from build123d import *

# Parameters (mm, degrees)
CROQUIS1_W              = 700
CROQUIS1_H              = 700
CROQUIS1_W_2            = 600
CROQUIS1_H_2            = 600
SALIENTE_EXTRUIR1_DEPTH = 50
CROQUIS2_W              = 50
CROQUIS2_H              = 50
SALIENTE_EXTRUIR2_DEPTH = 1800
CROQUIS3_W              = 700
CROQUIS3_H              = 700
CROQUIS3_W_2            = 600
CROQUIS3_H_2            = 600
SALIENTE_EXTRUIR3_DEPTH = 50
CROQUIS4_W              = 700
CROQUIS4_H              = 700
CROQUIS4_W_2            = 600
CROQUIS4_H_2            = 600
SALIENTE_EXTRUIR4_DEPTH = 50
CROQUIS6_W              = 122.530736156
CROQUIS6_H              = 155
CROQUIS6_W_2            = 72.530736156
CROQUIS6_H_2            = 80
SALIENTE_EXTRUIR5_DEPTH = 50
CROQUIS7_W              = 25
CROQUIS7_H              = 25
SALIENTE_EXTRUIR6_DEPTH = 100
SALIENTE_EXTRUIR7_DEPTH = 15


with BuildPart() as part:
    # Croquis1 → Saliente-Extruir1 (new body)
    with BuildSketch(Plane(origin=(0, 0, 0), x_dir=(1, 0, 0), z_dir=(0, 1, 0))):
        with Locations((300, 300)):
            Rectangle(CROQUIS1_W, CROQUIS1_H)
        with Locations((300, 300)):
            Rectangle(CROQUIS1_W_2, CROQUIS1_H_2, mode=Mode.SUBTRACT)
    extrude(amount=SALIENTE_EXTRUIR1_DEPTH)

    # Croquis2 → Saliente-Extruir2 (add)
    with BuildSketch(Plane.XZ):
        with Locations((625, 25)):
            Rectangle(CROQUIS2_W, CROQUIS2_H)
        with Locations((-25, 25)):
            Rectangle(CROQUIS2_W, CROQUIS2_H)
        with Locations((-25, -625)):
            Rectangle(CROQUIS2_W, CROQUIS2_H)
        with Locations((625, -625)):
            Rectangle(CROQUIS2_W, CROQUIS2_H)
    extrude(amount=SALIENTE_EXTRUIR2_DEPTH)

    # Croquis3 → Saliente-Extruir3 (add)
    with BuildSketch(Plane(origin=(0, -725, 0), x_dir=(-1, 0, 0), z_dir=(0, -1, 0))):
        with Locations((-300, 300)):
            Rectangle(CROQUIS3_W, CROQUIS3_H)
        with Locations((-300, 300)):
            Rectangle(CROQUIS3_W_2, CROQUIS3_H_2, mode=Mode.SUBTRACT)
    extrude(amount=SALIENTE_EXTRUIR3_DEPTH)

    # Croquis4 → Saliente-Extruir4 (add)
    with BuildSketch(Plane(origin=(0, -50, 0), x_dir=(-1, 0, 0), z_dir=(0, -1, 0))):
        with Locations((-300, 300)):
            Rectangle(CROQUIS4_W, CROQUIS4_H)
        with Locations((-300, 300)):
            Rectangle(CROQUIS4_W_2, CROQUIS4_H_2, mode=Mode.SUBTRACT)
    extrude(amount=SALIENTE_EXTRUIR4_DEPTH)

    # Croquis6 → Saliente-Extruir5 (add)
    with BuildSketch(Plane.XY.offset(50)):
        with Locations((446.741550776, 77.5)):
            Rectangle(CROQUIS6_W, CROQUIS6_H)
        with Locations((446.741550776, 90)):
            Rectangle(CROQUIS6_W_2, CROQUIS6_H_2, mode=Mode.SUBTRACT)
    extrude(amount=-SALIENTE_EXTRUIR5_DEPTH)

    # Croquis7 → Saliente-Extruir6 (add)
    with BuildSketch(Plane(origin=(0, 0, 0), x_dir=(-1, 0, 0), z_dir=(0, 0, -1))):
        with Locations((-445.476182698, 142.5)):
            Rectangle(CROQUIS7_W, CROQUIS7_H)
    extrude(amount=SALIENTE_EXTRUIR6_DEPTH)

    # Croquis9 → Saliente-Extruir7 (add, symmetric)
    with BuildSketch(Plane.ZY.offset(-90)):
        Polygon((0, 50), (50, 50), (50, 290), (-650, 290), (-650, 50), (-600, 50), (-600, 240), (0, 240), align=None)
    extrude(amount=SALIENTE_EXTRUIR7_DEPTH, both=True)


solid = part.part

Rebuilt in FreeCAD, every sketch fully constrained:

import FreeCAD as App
import Part
import Sketcher
from FreeCAD import Vector
Q = App.Units.Quantity

doc = App.newDocument("Part")
body = doc.addObject("PartDesign::Body", "Body")

sketch1 = body.newObject("Sketcher::SketchObject", "Sketch")
sketch1.AttachmentSupport = (doc.getObject("XZ_Plane"), [""])
sketch1.MapMode = "FlatFace"
sketch1.addGeometry(Part.LineSegment(Vector(-50, -650, 0), Vector(-50, 50, 0)), False)
sketch1.addGeometry(Part.LineSegment(Vector(-50, 50, 0), Vector(650, 50, 0)), False)
sketch1.addGeometry(Part.LineSegment(Vector(650, 50, 0), Vector(650, -650, 0)), False)
sketch1.addGeometry(Part.LineSegment(Vector(650, -650, 0), Vector(-50, -650, 0)), False)
sketch1.addGeometry(Part.LineSegment(Vector(600, 0, 0), Vector(0, 0, 0)), False)
sketch1.addGeometry(Part.LineSegment(Vector(0, 0, 0), Vector(0, -600, 0)), False)
sketch1.addGeometry(Part.LineSegment(Vector(0, -600, 0), Vector(600, -600, 0)), False)
sketch1.addGeometry(Part.LineSegment(Vector(600, -600, 0), Vector(600, 0, 0)), False)
sketch1.addConstraint(Sketcher.Constraint("Coincident", 0, 2, 1, 1))
sketch1.addConstraint(Sketcher.Constraint("Coincident", 1, 2, 2, 1))
sketch1.addConstraint(Sketcher.Constraint("Coincident", 2, 2, 3, 1))
sketch1.addConstraint(Sketcher.Constraint("Coincident", 3, 2, 0, 1))
sketch1.addConstraint(Sketcher.Constraint("Coincident", 4, 2, 5, 1))
sketch1.addConstraint(Sketcher.Constraint("Coincident", 5, 2, 6, 1))
sketch1.addConstraint(Sketcher.Constraint("Coincident", 6, 2, 7, 1))
sketch1.addConstraint(Sketcher.Constraint("Coincident", 7, 2, 4, 1))
sketch1.addConstraint(Sketcher.Constraint("Vertical", 0))
sketch1.addConstraint(Sketcher.Constraint("Horizontal", 1))
sketch1.addConstraint(Sketcher.Constraint("Vertical", 2))
sketch1.addConstraint(Sketcher.Constraint("Horizontal", 3))
sketch1.addConstraint(Sketcher.Constraint("Horizontal", 4))
sketch1.addConstraint(Sketcher.Constraint("Vertical", 5))
sketch1.addConstraint(Sketcher.Constraint("Horizontal", 6))
sketch1.addConstraint(Sketcher.Constraint("Vertical", 7))
sketch1.addConstraint(Sketcher.Constraint("Coincident", 4, 2, -1, 1))
sketch1.addConstraint(Sketcher.Constraint("Equal", 3, 0))
sketch1.addConstraint(Sketcher.Constraint("Equal", 6, 5))
sketch1.addConstraint(Sketcher.Constraint("DistanceX", 1, 1, 1, 2, Q("700 mm")))
sketch1.addConstraint(Sketcher.Constraint("DistanceX", 4, 2, 4, 1, Q("600 mm")))
sketch1.addConstraint(Sketcher.Constraint("DistanceX", 0, 2, -1, 1, Q("50 mm")))
sketch1.addConstraint(Sketcher.Constraint("DistanceY", -1, 1, 0, 2, Q("50 mm")))
pad1 = body.newObject("PartDesign::Pad", "Pad")
pad1.Profile = sketch1
pad1.Length = 50
pad1.Reversed = True

sketch2 = body.newObject("Sketcher::SketchObject", "Sketch001")
sketch2.AttachmentSupport = (doc.getObject("XZ_Plane"), [""])
sketch2.MapMode = "FlatFace"
sketch2.addGeometry(Part.LineSegment(Vector(600, 50, 0), Vector(600, 0, 0)), False)
sketch2.addGeometry(Part.LineSegment(Vector(600, 0, 0), Vector(650, 0, 0)), False)
sketch2.addGeometry(Part.LineSegment(Vector(650, 0, 0), Vector(650, 50, 0)), False)
sketch2.addGeometry(Part.LineSegment(Vector(650, 50, 0), Vector(600, 50, 0)), False)
sketch2.addGeometry(Part.LineSegment(Vector(-50, 50, 0), Vector(-50, 0, 0)), False)
sketch2.addGeometry(Part.LineSegment(Vector(-50, 0, 0), Vector(0, 0, 0)), False)
sketch2.addGeometry(Part.LineSegment(Vector(0, 0, 0), Vector(0, 50, 0)), False)
sketch2.addGeometry(Part.LineSegment(Vector(0, 50, 0), Vector(-50, 50, 0)), False)
sketch2.addGeometry(Part.LineSegment(Vector(-50, -600, 0), Vector(-50, -650, 0)), False)
sketch2.addGeometry(Part.LineSegment(Vector(-50, -650, 0), Vector(0, -650, 0)), False)
sketch2.addGeometry(Part.LineSegment(Vector(0, -650, 0), Vector(0, -600, 0)), False)
sketch2.addGeometry(Part.LineSegment(Vector(0, -600, 0), Vector(-50, -600, 0)), False)
sketch2.addGeometry(Part.LineSegment(Vector(600, -600, 0), Vector(600, -650, 0)), False)
sketch2.addGeometry(Part.LineSegment(Vector(600, -650, 0), Vector(650, -650, 0)), False)
sketch2.addGeometry(Part.LineSegment(Vector(650, -650, 0), Vector(650, -600, 0)), False)
sketch2.addGeometry(Part.LineSegment(Vector(650, -600, 0), Vector(600, -600, 0)), False)
sketch2.addConstraint(Sketcher.Constraint("Coincident", 0, 2, 1, 1))
sketch2.addConstraint(Sketcher.Constraint("Coincident", 1, 2, 2, 1))
sketch2.addConstraint(Sketcher.Constraint("Coincident", 2, 2, 3, 1))
sketch2.addConstraint(Sketcher.Constraint("Coincident", 3, 2, 0, 1))
sketch2.addConstraint(Sketcher.Constraint("Coincident", 4, 2, 5, 1))
sketch2.addConstraint(Sketcher.Constraint("Coincident", 5, 2, 6, 1))
sketch2.addConstraint(Sketcher.Constraint("Coincident", 6, 2, 7, 1))
sketch2.addConstraint(Sketcher.Constraint("Coincident", 7, 2, 4, 1))
sketch2.addConstraint(Sketcher.Constraint("Coincident", 8, 2, 9, 1))
sketch2.addConstraint(Sketcher.Constraint("Coincident", 9, 2, 10, 1))
sketch2.addConstraint(Sketcher.Constraint("Coincident", 10, 2, 11, 1))
sketch2.addConstraint(Sketcher.Constraint("Coincident", 11, 2, 8, 1))
sketch2.addConstraint(Sketcher.Constraint("Coincident", 12, 2, 13, 1))
sketch2.addConstraint(Sketcher.Constraint("Coincident", 13, 2, 14, 1))
sketch2.addConstraint(Sketcher.Constraint("Coincident", 14, 2, 15, 1))
sketch2.addConstraint(Sketcher.Constraint("Coincident", 15, 2, 12, 1))
sketch2.addConstraint(Sketcher.Constraint("Vertical", 0))
sketch2.addConstraint(Sketcher.Constraint("Horizontal", 1))
sketch2.addConstraint(Sketcher.Constraint("Vertical", 2))
sketch2.addConstraint(Sketcher.Constraint("Horizontal", 3))
sketch2.addConstraint(Sketcher.Constraint("Vertical", 4))
sketch2.addConstraint(Sketcher.Constraint("Horizontal", 5))
sketch2.addConstraint(Sketcher.Constraint("Vertical", 6))
sketch2.addConstraint(Sketcher.Constraint("Horizontal", 7))
sketch2.addConstraint(Sketcher.Constraint("Vertical", 8))
sketch2.addConstraint(Sketcher.Constraint("Horizontal", 9))
sketch2.addConstraint(Sketcher.Constraint("Vertical", 10))
sketch2.addConstraint(Sketcher.Constraint("Horizontal", 11))
sketch2.addConstraint(Sketcher.Constraint("Vertical", 12))
sketch2.addConstraint(Sketcher.Constraint("Horizontal", 13))
sketch2.addConstraint(Sketcher.Constraint("Vertical", 14))
sketch2.addConstraint(Sketcher.Constraint("Horizontal", 15))
sketch2.addConstraint(Sketcher.Constraint("Coincident", 5, 2, -1, 1))
sketch2.addConstraint(Sketcher.Constraint("PointOnObject", 0, 2, -1))
sketch2.addConstraint(Sketcher.Constraint("PointOnObject", 9, 2, -2))
sketch2.addConstraint(Sketcher.Constraint("Horizontal", 3, 2, 6, 2))
sketch2.addConstraint(Sketcher.Constraint("Horizontal", 9, 2, 12, 2))
sketch2.addConstraint(Sketcher.Constraint("Horizontal", 11, 2, 14, 2))
sketch2.addConstraint(Sketcher.Constraint("Vertical", 7, 2, 8, 2))
sketch2.addConstraint(Sketcher.Constraint("Vertical", 3, 2, 12, 2))
sketch2.addConstraint(Sketcher.Constraint("Vertical", 2, 2, 13, 2))
sketch2.addConstraint(Sketcher.Constraint("Equal", 3, 5))
sketch2.addConstraint(Sketcher.Constraint("Equal", 15, 0))
sketch2.addConstraint(Sketcher.Constraint("Equal", 6, 8))
sketch2.addConstraint(Sketcher.Constraint("DistanceX", 1, 1, 1, 2, Q("50 mm")))
sketch2.addConstraint(Sketcher.Constraint("DistanceX", -1, 1, 0, 2, Q("600 mm")))
sketch2.addConstraint(Sketcher.Constraint("DistanceY", 8, 2, -1, 1, Q("650 mm")))
pad2 = body.newObject("PartDesign::Pad", "Pad001")
pad2.Profile = sketch2
pad2.Length = 1800

sketch3 = body.newObject("Sketcher::SketchObject", "Sketch002")
sketch3.AttachmentSupport = (doc.getObject("XZ_Plane"), [""])
sketch3.MapMode = "FlatFace"
sketch3.AttachmentOffset = App.Placement(Vector(0, 0, 725), App.Rotation())
sketch3.addGeometry(Part.LineSegment(Vector(650, -650, 0), Vector(650, 50, 0)), False)
sketch3.addGeometry(Part.LineSegment(Vector(650, 50, 0), Vector(-50, 50, 0)), False)
sketch3.addGeometry(Part.LineSegment(Vector(-50, 50, 0), Vector(-50, -650, 0)), False)
sketch3.addGeometry(Part.LineSegment(Vector(-50, -650, 0), Vector(650, -650, 0)), False)
sketch3.addGeometry(Part.LineSegment(Vector(0, 0, 0), Vector(600, 0, 0)), False)
sketch3.addGeometry(Part.LineSegment(Vector(600, 0, 0), Vector(600, -600, 0)), False)
sketch3.addGeometry(Part.LineSegment(Vector(600, -600, 0), Vector(0, -600, 0)), False)
sketch3.addGeometry(Part.LineSegment(Vector(0, -600, 0), Vector(0, 0, 0)), False)
sketch3.addConstraint(Sketcher.Constraint("Coincident", 0, 2, 1, 1))
sketch3.addConstraint(Sketcher.Constraint("Coincident", 1, 2, 2, 1))
sketch3.addConstraint(Sketcher.Constraint("Coincident", 2, 2, 3, 1))
sketch3.addConstraint(Sketcher.Constraint("Coincident", 3, 2, 0, 1))
sketch3.addConstraint(Sketcher.Constraint("Coincident", 4, 2, 5, 1))
sketch3.addConstraint(Sketcher.Constraint("Coincident", 5, 2, 6, 1))
sketch3.addConstraint(Sketcher.Constraint("Coincident", 6, 2, 7, 1))
sketch3.addConstraint(Sketcher.Constraint("Coincident", 7, 2, 4, 1))
sketch3.addConstraint(Sketcher.Constraint("Vertical", 0))
sketch3.addConstraint(Sketcher.Constraint("Horizontal", 1))
sketch3.addConstraint(Sketcher.Constraint("Vertical", 2))
sketch3.addConstraint(Sketcher.Constraint("Horizontal", 3))
sketch3.addConstraint(Sketcher.Constraint("Horizontal", 4))
sketch3.addConstraint(Sketcher.Constraint("Vertical", 5))
sketch3.addConstraint(Sketcher.Constraint("Horizontal", 6))
sketch3.addConstraint(Sketcher.Constraint("Vertical", 7))
sketch3.addConstraint(Sketcher.Constraint("Coincident", 7, 2, -1, 1))
sketch3.addConstraint(Sketcher.Constraint("Equal", 3, 0))
sketch3.addConstraint(Sketcher.Constraint("Equal", 6, 5))
sketch3.addConstraint(Sketcher.Constraint("DistanceX", 1, 2, 1, 1, Q("700 mm")))
sketch3.addConstraint(Sketcher.Constraint("DistanceX", 4, 1, 4, 2, Q("600 mm")))
sketch3.addConstraint(Sketcher.Constraint("DistanceX", -1, 1, 0, 2, Q("650 mm")))
sketch3.addConstraint(Sketcher.Constraint("DistanceY", -1, 1, 0, 2, Q("50 mm")))
pad3 = body.newObject("PartDesign::Pad", "Pad002")
pad3.Profile = sketch3
pad3.Length = 50

sketch4 = body.newObject("Sketcher::SketchObject", "Sketch003")
sketch4.AttachmentSupport = (doc.getObject("XZ_Plane"), [""])
sketch4.MapMode = "FlatFace"
sketch4.AttachmentOffset = App.Placement(Vector(0, 0, 50), App.Rotation())
sketch4.addGeometry(Part.LineSegment(Vector(650, -650, 0), Vector(650, 50, 0)), False)
sketch4.addGeometry(Part.LineSegment(Vector(650, 50, 0), Vector(-50, 50, 0)), False)
sketch4.addGeometry(Part.LineSegment(Vector(-50, 50, 0), Vector(-50, -650, 0)), False)
sketch4.addGeometry(Part.LineSegment(Vector(-50, -650, 0), Vector(650, -650, 0)), False)
sketch4.addGeometry(Part.LineSegment(Vector(0, 0, 0), Vector(600, 0, 0)), False)
sketch4.addGeometry(Part.LineSegment(Vector(600, 0, 0), Vector(600, -600, 0)), False)
sketch4.addGeometry(Part.LineSegment(Vector(600, -600, 0), Vector(0, -600, 0)), False)
sketch4.addGeometry(Part.LineSegment(Vector(0, -600, 0), Vector(0, 0, 0)), False)
sketch4.addConstraint(Sketcher.Constraint("Coincident", 0, 2, 1, 1))
sketch4.addConstraint(Sketcher.Constraint("Coincident", 1, 2, 2, 1))
sketch4.addConstraint(Sketcher.Constraint("Coincident", 2, 2, 3, 1))
sketch4.addConstraint(Sketcher.Constraint("Coincident", 3, 2, 0, 1))
sketch4.addConstraint(Sketcher.Constraint("Coincident", 4, 2, 5, 1))
sketch4.addConstraint(Sketcher.Constraint("Coincident", 5, 2, 6, 1))
sketch4.addConstraint(Sketcher.Constraint("Coincident", 6, 2, 7, 1))
sketch4.addConstraint(Sketcher.Constraint("Coincident", 7, 2, 4, 1))
sketch4.addConstraint(Sketcher.Constraint("Vertical", 0))
sketch4.addConstraint(Sketcher.Constraint("Horizontal", 1))
sketch4.addConstraint(Sketcher.Constraint("Vertical", 2))
sketch4.addConstraint(Sketcher.Constraint("Horizontal", 3))
sketch4.addConstraint(Sketcher.Constraint("Horizontal", 4))
sketch4.addConstraint(Sketcher.Constraint("Vertical", 5))
sketch4.addConstraint(Sketcher.Constraint("Horizontal", 6))
sketch4.addConstraint(Sketcher.Constraint("Vertical", 7))
sketch4.addConstraint(Sketcher.Constraint("Coincident", 7, 2, -1, 1))
sketch4.addConstraint(Sketcher.Constraint("Equal", 3, 0))
sketch4.addConstraint(Sketcher.Constraint("Equal", 6, 5))
sketch4.addConstraint(Sketcher.Constraint("DistanceX", 1, 2, 1, 1, Q("700 mm")))
sketch4.addConstraint(Sketcher.Constraint("DistanceX", 4, 1, 4, 2, Q("600 mm")))
sketch4.addConstraint(Sketcher.Constraint("DistanceX", -1, 1, 0, 2, Q("650 mm")))
sketch4.addConstraint(Sketcher.Constraint("DistanceY", -1, 1, 0, 2, Q("50 mm")))
pad4 = body.newObject("PartDesign::Pad", "Pad003")
pad4.Profile = sketch4
pad4.Length = 50

sketch5 = body.newObject("Sketcher::SketchObject", "Sketch004")
sketch5.AttachmentSupport = (doc.getObject("XY_Plane"), [""])
sketch5.MapMode = "FlatFace"
sketch5.AttachmentOffset = App.Placement(Vector(0, 0, 50), App.Rotation())
sketch5.addGeometry(Part.LineSegment(Vector(385, 155, 0), Vector(385, 0, 0)), False)
sketch5.addGeometry(Part.LineSegment(Vector(385, 0, 0), Vector(508, 0, 0)), False)
sketch5.addGeometry(Part.LineSegment(Vector(508, 0, 0), Vector(508, 155, 0)), False)
sketch5.addGeometry(Part.LineSegment(Vector(508, 155, 0), Vector(385, 155, 0)), False)
sketch5.addGeometry(Part.LineSegment(Vector(483, 50, 0), Vector(410, 50, 0)), False)
sketch5.addGeometry(Part.LineSegment(Vector(410, 50, 0), Vector(410, 130, 0)), False)
sketch5.addGeometry(Part.LineSegment(Vector(410, 130, 0), Vector(483, 130, 0)), False)
sketch5.addGeometry(Part.LineSegment(Vector(483, 130, 0), Vector(483, 50, 0)), False)
sketch5.addConstraint(Sketcher.Constraint("Coincident", 0, 2, 1, 1))
sketch5.addConstraint(Sketcher.Constraint("Coincident", 1, 2, 2, 1))
sketch5.addConstraint(Sketcher.Constraint("Coincident", 2, 2, 3, 1))
sketch5.addConstraint(Sketcher.Constraint("Coincident", 3, 2, 0, 1))
sketch5.addConstraint(Sketcher.Constraint("Coincident", 4, 2, 5, 1))
sketch5.addConstraint(Sketcher.Constraint("Coincident", 5, 2, 6, 1))
sketch5.addConstraint(Sketcher.Constraint("Coincident", 6, 2, 7, 1))
sketch5.addConstraint(Sketcher.Constraint("Coincident", 7, 2, 4, 1))
sketch5.addConstraint(Sketcher.Constraint("Vertical", 0))
sketch5.addConstraint(Sketcher.Constraint("Horizontal", 1))
sketch5.addConstraint(Sketcher.Constraint("Vertical", 2))
sketch5.addConstraint(Sketcher.Constraint("Horizontal", 3))
sketch5.addConstraint(Sketcher.Constraint("Horizontal", 4))
sketch5.addConstraint(Sketcher.Constraint("Vertical", 5))
sketch5.addConstraint(Sketcher.Constraint("Horizontal", 6))
sketch5.addConstraint(Sketcher.Constraint("Vertical", 7))
sketch5.addConstraint(Sketcher.Constraint("PointOnObject", 0, 2, -1))
sketch5.addConstraint(Sketcher.Constraint("DistanceY", 0, 2, 0, 1, Q("155 mm")))
sketch5.addConstraint(Sketcher.Constraint("DistanceY", 5, 1, 5, 2, Q("80 mm")))
sketch5.addConstraint(Sketcher.Constraint("DistanceY", -1, 1, 4, 2, Q("50 mm")))
sketch5.addConstraint(Sketcher.Constraint("DistanceX", 0, 2, 4, 2, Q("25 mm")))
sketch5.addConstraint(Sketcher.Constraint("DistanceX", 6, 2, 2, 2, Q("25 mm")))
sketch5.addConstraint(Sketcher.Constraint("DistanceX", 1, 1, 1, 2, Q("122.530736 mm")))
sketch5.addConstraint(Sketcher.Constraint("DistanceX", -1, 1, 1, 2, Q("508.006919 mm")))
pad5 = body.newObject("PartDesign::Pad", "Pad004")
pad5.Profile = sketch5
pad5.Length = 50
pad5.Reversed = True

sketch6 = body.newObject("Sketcher::SketchObject", "Sketch005")
sketch6.AttachmentSupport = (doc.getObject("XY_Plane"), [""])
sketch6.MapMode = "FlatFace"
sketch6.addGeometry(Part.LineSegment(Vector(458, 155, 0), Vector(458, 130, 0)), False)
sketch6.addGeometry(Part.LineSegment(Vector(458, 130, 0), Vector(433, 130, 0)), False)
sketch6.addGeometry(Part.LineSegment(Vector(433, 130, 0), Vector(433, 155, 0)), False)
sketch6.addGeometry(Part.LineSegment(Vector(433, 155, 0), Vector(458, 155, 0)), False)
sketch6.addConstraint(Sketcher.Constraint("Coincident", 0, 2, 1, 1))
sketch6.addConstraint(Sketcher.Constraint("Coincident", 1, 2, 2, 1))
sketch6.addConstraint(Sketcher.Constraint("Coincident", 2, 2, 3, 1))
sketch6.addConstraint(Sketcher.Constraint("Coincident", 3, 2, 0, 1))
sketch6.addConstraint(Sketcher.Constraint("Vertical", 0))
sketch6.addConstraint(Sketcher.Constraint("Horizontal", 1))
sketch6.addConstraint(Sketcher.Constraint("Vertical", 2))
sketch6.addConstraint(Sketcher.Constraint("Horizontal", 3))
sketch6.addConstraint(Sketcher.Constraint("Equal", 3, 0))
sketch6.addConstraint(Sketcher.Constraint("DistanceX", 1, 2, 1, 1, Q("25 mm")))
sketch6.addConstraint(Sketcher.Constraint("DistanceY", -1, 1, 0, 2, Q("130 mm")))
sketch6.addConstraint(Sketcher.Constraint("DistanceX", -1, 1, 0, 2, Q("457.976183 mm")))
pad6 = body.newObject("PartDesign::Pad", "Pad005")
pad6.Profile = sketch6
pad6.Length = 100
pad6.Reversed = True

sketch7 = body.newObject("Sketcher::SketchObject", "Sketch006")
sketch7.AttachmentSupport = (doc.getObject("YZ_Plane"), [""])
sketch7.MapMode = "FlatFace"
sketch7.AttachmentOffset = App.Placement(Vector(0, 0, 90), App.Rotation())
sketch7.addGeometry(Part.LineSegment(Vector(50, 0, 0), Vector(50, 50, 0)), False)
sketch7.addGeometry(Part.LineSegment(Vector(50, 50, 0), Vector(290, 50, 0)), False)
sketch7.addGeometry(Part.LineSegment(Vector(290, 50, 0), Vector(290, -650, 0)), False)
sketch7.addGeometry(Part.LineSegment(Vector(290, -650, 0), Vector(50, -650, 0)), False)
sketch7.addGeometry(Part.LineSegment(Vector(50, -650, 0), Vector(50, -600, 0)), False)
sketch7.addGeometry(Part.LineSegment(Vector(50, -600, 0), Vector(240, -600, 0)), False)
sketch7.addGeometry(Part.LineSegment(Vector(240, -600, 0), Vector(240, 0, 0)), False)
sketch7.addGeometry(Part.LineSegment(Vector(240, 0, 0), Vector(50, 0, 0)), False)
sketch7.addConstraint(Sketcher.Constraint("Coincident", 0, 2, 1, 1))
sketch7.addConstraint(Sketcher.Constraint("Coincident", 1, 2, 2, 1))
sketch7.addConstraint(Sketcher.Constraint("Coincident", 2, 2, 3, 1))
sketch7.addConstraint(Sketcher.Constraint("Coincident", 3, 2, 4, 1))
sketch7.addConstraint(Sketcher.Constraint("Coincident", 4, 2, 5, 1))
sketch7.addConstraint(Sketcher.Constraint("Coincident", 5, 2, 6, 1))
sketch7.addConstraint(Sketcher.Constraint("Coincident", 6, 2, 7, 1))
sketch7.addConstraint(Sketcher.Constraint("Coincident", 7, 2, 0, 1))
sketch7.addConstraint(Sketcher.Constraint("Vertical", 0))
sketch7.addConstraint(Sketcher.Constraint("Horizontal", 1))
sketch7.addConstraint(Sketcher.Constraint("Vertical", 2))
sketch7.addConstraint(Sketcher.Constraint("Horizontal", 3))
sketch7.addConstraint(Sketcher.Constraint("Vertical", 4))
sketch7.addConstraint(Sketcher.Constraint("Horizontal", 5))
sketch7.addConstraint(Sketcher.Constraint("Vertical", 6))
sketch7.addConstraint(Sketcher.Constraint("Horizontal", 7))
sketch7.addConstraint(Sketcher.Constraint("PointOnObject", 6, 2, -1))
sketch7.addConstraint(Sketcher.Constraint("Vertical", 0, 2, 3, 2))
sketch7.addConstraint(Sketcher.Constraint("Equal", 0, 4))
sketch7.addConstraint(Sketcher.Constraint("DistanceX", 1, 1, 1, 2, Q("240 mm")))
sketch7.addConstraint(Sketcher.Constraint("DistanceX", 5, 1, 5, 2, Q("190 mm")))
sketch7.addConstraint(Sketcher.Constraint("DistanceY", 0, 1, 0, 2, Q("50 mm")))
sketch7.addConstraint(Sketcher.Constraint("DistanceY", 2, 2, 2, 1, Q("700 mm")))
sketch7.addConstraint(Sketcher.Constraint("DistanceX", -1, 1, 0, 2, Q("50 mm")))
pad7 = body.newObject("PartDesign::Pad", "Pad006")
pad7.Profile = sketch7
pad7.Length = 30
pad7.Midplane = True

doc.recompute()
